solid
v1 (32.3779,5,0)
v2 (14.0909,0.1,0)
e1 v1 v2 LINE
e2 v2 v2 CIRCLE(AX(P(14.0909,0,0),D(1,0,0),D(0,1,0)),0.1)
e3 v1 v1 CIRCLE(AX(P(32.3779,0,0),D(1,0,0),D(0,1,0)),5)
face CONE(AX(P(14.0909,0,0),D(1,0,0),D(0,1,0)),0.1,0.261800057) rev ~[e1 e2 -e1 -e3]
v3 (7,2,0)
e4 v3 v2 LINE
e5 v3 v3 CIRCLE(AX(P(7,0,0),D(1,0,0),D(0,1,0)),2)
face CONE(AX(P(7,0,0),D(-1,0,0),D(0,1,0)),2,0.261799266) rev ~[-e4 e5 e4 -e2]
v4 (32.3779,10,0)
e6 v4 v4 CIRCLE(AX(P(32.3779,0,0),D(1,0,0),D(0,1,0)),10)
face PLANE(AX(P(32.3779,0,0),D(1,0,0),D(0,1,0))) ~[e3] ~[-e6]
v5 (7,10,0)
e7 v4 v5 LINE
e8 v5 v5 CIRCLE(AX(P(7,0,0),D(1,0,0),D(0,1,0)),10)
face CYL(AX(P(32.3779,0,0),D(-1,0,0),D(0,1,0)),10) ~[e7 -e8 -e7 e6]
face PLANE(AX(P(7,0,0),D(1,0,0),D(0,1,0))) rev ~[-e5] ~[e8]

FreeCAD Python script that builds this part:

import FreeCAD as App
import Part
import Sketcher
Q = App.Units.Quantity


def add_polygon(sketch, points):
    """Adds a closed chain of lines whose ends are joined by coincident constraints."""
    first, n = sketch.GeometryCount, len(points)
    for a, b in zip(points, points[1:] + points[:1]):
        sketch.addGeometry(Part.LineSegment(App.Vector(*a, 0), App.Vector(*b, 0)), False)
    for i in range(n):
        sketch.addConstraint(Sketcher.Constraint("Coincident", first + i, 2, first + (i + 1) % n, 1))

doc = App.newDocument("Part")
body = doc.addObject("PartDesign::Body", "Body")

# Sketch on XY plane
sketch1 = doc.addObject("Sketcher::SketchObject", "Sketch")
body.addObject(sketch1)
sketch1.AttachmentSupport = (doc.XY_Plane, [""])
sketch1.MapMode = "FlatFace"
add_polygon(sketch1, [(7, 2), (14.0909, 0.1), (32.3779, 5), (32.3779, 10), (7, 10)])  # lines 0-4
sketch1.addConstraint([
    Sketcher.Constraint("Vertical", 2),
    Sketcher.Constraint("Horizontal", 3),
    Sketcher.Constraint("Vertical", 4),
    Sketcher.Constraint("DistanceY", 2, 1, 2, 2, Q("5 mm")),
    Sketcher.Constraint("DistanceY", 4, 2, 4, 1, Q("8 mm")),
    Sketcher.Constraint("Angle", 0, Q("-15 deg")),
    Sketcher.Constraint("Angle", 1, Q("15 deg")),
    Sketcher.Constraint("DistanceY", -1, 1, 1, 2, Q("5 mm")),
    Sketcher.Constraint("DistanceY", -1, 1, 0, 2, Q("0.1 mm")),
    Sketcher.Constraint("DistanceX", -1, 1, 3, 2, Q("7 mm")),
])
revolution = doc.addObject("PartDesign::Revolution", "Revolution")
body.addObject(revolution)
revolution.Profile = sketch1
revolution.ReferenceAxis = (sketch1, ["H_Axis"])
revolution.Angle = 360

doc.recompute()
